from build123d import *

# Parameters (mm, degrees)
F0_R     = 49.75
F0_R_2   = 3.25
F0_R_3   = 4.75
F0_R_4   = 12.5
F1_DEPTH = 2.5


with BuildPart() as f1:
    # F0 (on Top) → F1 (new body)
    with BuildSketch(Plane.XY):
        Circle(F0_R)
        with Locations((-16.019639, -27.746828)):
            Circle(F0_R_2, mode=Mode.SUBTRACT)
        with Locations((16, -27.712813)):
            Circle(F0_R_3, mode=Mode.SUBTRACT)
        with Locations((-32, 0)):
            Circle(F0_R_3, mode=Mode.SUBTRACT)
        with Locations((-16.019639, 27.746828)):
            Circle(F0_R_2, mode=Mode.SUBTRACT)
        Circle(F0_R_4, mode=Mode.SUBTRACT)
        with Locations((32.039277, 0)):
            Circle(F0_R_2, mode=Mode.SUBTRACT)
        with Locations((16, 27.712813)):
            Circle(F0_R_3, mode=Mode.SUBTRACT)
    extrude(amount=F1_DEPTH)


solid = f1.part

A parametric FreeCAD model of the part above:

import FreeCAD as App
import Part
import Sketcher
from FreeCAD import Vector
Q = App.Units.Quantity

doc = App.newDocument("Part")
params = doc.addObject("Spreadsheet::Sheet", "Params")
for row, (alias, value) in enumerate([
    ("sketch1_diameter", "25 mm"),
    ("sketch1_diameter2", "99.5 mm"),
    ("sketch1_diameter3", "6.5 mm"),
    ("sketch1_diameter4", "9.5 mm"),
    ("pad1_length", "2.5 mm"),
], start=1):
    params.set(f"A{row}", alias)
    params.set(f"B{row}", "=" + value)
    params.setAlias(f"B{row}", alias)

body = doc.addObject("PartDesign::Body", "Body")

# Sketch on XY plane
sketch1 = body.newObject("Sketcher::SketchObject", "Sketch")
sketch1.AttachmentSupport = (doc.getObject("XY_Plane"), [""])
sketch1.MapMode = "FlatFace"
sketch1.addGeometry([
    Part.Circle(Vector(0, 0, 0), Vector(0, 0, 1), 49.8),  # 0
    Part.Circle(Vector(-16, -27.7, 0), Vector(0, 0, 1), 3.2),  # 1
    Part.Circle(Vector(16, -27.7, 0), Vector(0, 0, 1), 4.8),  # 2
    Part.Circle(Vector(-32, 0, 0), Vector(0, 0, 1), 4.8),  # 3
    Part.Circle(Vector(-16, 27.7, 0), Vector(0, 0, 1), 3.2),  # 4
    Part.Circle(Vector(0, 0, 0), Vector(0, 0, 1), 12.5),  # 5
    Part.Circle(Vector(32, 0, 0), Vector(0, 0, 1), 3.2),  # 6
    Part.Circle(Vector(16, 27.7, 0), Vector(0, 0, 1), 4.8),  # 7
], False)
sketch1.addConstraint([
    Sketcher.Constraint("Coincident", 0, 3, -1, 1),
    Sketcher.Constraint("Coincident", 5, 3, -1, 1),
    Sketcher.Constraint("Equal", 2, 3),
    Sketcher.Constraint("Equal", 1, 4),
    Sketcher.Constraint("Equal", 4, 6),
    Sketcher.Constraint("Equal", 3, 7),
    Sketcher.Constraint("Symmetric", 1, 3, 4, 3, -1),
    Sketcher.Constraint("Symmetric", 2, 3, 7, 3, -1),
    Sketcher.Constraint("PointOnObject", 3, 3, -1),
    Sketcher.Constraint("PointOnObject", 6, 3, -1),
    Sketcher.Constraint("Diameter", 5, Q("25 mm")),
    Sketcher.Constraint("Diameter", 0, Q("99.5 mm")),
    Sketcher.Constraint("Diameter", 1, Q("6.5 mm")),
    Sketcher.Constraint("Diameter", 2, Q("9.5 mm")),
    Sketcher.Constraint("DistanceX", -1, 1, 2, 3, Q("16 mm")),
    Sketcher.Constraint("DistanceX", 3, 3, -1, 1, Q("32 mm")),
    Sketcher.Constraint("DistanceX", 1, 3, -1, 1, Q("16.019639 mm")),
    Sketcher.Constraint("DistanceY", 1, 3, -1, 1, Q("27.746828 mm")),
    Sketcher.Constraint("DistanceY", 2, 3, 4, 3, Q("55.459641 mm")),
    Sketcher.Constraint("DistanceX", -1, 1, 6, 3, Q("32.039277 mm")),
])
sketch1.setExpression("Constraints[10]", "Params.sketch1_diameter")
sketch1.setExpression("Constraints[11]", "Params.sketch1_diameter2")
sketch1.setExpression("Constraints[12]", "Params.sketch1_diameter3")
sketch1.setExpression("Constraints[13]", "Params.sketch1_diameter4")
pad1 = body.newObject("PartDesign::Pad", "Pad")
pad1.Profile = sketch1
pad1.setExpression("Length", "Params.pad1_length")

doc.recompute()
